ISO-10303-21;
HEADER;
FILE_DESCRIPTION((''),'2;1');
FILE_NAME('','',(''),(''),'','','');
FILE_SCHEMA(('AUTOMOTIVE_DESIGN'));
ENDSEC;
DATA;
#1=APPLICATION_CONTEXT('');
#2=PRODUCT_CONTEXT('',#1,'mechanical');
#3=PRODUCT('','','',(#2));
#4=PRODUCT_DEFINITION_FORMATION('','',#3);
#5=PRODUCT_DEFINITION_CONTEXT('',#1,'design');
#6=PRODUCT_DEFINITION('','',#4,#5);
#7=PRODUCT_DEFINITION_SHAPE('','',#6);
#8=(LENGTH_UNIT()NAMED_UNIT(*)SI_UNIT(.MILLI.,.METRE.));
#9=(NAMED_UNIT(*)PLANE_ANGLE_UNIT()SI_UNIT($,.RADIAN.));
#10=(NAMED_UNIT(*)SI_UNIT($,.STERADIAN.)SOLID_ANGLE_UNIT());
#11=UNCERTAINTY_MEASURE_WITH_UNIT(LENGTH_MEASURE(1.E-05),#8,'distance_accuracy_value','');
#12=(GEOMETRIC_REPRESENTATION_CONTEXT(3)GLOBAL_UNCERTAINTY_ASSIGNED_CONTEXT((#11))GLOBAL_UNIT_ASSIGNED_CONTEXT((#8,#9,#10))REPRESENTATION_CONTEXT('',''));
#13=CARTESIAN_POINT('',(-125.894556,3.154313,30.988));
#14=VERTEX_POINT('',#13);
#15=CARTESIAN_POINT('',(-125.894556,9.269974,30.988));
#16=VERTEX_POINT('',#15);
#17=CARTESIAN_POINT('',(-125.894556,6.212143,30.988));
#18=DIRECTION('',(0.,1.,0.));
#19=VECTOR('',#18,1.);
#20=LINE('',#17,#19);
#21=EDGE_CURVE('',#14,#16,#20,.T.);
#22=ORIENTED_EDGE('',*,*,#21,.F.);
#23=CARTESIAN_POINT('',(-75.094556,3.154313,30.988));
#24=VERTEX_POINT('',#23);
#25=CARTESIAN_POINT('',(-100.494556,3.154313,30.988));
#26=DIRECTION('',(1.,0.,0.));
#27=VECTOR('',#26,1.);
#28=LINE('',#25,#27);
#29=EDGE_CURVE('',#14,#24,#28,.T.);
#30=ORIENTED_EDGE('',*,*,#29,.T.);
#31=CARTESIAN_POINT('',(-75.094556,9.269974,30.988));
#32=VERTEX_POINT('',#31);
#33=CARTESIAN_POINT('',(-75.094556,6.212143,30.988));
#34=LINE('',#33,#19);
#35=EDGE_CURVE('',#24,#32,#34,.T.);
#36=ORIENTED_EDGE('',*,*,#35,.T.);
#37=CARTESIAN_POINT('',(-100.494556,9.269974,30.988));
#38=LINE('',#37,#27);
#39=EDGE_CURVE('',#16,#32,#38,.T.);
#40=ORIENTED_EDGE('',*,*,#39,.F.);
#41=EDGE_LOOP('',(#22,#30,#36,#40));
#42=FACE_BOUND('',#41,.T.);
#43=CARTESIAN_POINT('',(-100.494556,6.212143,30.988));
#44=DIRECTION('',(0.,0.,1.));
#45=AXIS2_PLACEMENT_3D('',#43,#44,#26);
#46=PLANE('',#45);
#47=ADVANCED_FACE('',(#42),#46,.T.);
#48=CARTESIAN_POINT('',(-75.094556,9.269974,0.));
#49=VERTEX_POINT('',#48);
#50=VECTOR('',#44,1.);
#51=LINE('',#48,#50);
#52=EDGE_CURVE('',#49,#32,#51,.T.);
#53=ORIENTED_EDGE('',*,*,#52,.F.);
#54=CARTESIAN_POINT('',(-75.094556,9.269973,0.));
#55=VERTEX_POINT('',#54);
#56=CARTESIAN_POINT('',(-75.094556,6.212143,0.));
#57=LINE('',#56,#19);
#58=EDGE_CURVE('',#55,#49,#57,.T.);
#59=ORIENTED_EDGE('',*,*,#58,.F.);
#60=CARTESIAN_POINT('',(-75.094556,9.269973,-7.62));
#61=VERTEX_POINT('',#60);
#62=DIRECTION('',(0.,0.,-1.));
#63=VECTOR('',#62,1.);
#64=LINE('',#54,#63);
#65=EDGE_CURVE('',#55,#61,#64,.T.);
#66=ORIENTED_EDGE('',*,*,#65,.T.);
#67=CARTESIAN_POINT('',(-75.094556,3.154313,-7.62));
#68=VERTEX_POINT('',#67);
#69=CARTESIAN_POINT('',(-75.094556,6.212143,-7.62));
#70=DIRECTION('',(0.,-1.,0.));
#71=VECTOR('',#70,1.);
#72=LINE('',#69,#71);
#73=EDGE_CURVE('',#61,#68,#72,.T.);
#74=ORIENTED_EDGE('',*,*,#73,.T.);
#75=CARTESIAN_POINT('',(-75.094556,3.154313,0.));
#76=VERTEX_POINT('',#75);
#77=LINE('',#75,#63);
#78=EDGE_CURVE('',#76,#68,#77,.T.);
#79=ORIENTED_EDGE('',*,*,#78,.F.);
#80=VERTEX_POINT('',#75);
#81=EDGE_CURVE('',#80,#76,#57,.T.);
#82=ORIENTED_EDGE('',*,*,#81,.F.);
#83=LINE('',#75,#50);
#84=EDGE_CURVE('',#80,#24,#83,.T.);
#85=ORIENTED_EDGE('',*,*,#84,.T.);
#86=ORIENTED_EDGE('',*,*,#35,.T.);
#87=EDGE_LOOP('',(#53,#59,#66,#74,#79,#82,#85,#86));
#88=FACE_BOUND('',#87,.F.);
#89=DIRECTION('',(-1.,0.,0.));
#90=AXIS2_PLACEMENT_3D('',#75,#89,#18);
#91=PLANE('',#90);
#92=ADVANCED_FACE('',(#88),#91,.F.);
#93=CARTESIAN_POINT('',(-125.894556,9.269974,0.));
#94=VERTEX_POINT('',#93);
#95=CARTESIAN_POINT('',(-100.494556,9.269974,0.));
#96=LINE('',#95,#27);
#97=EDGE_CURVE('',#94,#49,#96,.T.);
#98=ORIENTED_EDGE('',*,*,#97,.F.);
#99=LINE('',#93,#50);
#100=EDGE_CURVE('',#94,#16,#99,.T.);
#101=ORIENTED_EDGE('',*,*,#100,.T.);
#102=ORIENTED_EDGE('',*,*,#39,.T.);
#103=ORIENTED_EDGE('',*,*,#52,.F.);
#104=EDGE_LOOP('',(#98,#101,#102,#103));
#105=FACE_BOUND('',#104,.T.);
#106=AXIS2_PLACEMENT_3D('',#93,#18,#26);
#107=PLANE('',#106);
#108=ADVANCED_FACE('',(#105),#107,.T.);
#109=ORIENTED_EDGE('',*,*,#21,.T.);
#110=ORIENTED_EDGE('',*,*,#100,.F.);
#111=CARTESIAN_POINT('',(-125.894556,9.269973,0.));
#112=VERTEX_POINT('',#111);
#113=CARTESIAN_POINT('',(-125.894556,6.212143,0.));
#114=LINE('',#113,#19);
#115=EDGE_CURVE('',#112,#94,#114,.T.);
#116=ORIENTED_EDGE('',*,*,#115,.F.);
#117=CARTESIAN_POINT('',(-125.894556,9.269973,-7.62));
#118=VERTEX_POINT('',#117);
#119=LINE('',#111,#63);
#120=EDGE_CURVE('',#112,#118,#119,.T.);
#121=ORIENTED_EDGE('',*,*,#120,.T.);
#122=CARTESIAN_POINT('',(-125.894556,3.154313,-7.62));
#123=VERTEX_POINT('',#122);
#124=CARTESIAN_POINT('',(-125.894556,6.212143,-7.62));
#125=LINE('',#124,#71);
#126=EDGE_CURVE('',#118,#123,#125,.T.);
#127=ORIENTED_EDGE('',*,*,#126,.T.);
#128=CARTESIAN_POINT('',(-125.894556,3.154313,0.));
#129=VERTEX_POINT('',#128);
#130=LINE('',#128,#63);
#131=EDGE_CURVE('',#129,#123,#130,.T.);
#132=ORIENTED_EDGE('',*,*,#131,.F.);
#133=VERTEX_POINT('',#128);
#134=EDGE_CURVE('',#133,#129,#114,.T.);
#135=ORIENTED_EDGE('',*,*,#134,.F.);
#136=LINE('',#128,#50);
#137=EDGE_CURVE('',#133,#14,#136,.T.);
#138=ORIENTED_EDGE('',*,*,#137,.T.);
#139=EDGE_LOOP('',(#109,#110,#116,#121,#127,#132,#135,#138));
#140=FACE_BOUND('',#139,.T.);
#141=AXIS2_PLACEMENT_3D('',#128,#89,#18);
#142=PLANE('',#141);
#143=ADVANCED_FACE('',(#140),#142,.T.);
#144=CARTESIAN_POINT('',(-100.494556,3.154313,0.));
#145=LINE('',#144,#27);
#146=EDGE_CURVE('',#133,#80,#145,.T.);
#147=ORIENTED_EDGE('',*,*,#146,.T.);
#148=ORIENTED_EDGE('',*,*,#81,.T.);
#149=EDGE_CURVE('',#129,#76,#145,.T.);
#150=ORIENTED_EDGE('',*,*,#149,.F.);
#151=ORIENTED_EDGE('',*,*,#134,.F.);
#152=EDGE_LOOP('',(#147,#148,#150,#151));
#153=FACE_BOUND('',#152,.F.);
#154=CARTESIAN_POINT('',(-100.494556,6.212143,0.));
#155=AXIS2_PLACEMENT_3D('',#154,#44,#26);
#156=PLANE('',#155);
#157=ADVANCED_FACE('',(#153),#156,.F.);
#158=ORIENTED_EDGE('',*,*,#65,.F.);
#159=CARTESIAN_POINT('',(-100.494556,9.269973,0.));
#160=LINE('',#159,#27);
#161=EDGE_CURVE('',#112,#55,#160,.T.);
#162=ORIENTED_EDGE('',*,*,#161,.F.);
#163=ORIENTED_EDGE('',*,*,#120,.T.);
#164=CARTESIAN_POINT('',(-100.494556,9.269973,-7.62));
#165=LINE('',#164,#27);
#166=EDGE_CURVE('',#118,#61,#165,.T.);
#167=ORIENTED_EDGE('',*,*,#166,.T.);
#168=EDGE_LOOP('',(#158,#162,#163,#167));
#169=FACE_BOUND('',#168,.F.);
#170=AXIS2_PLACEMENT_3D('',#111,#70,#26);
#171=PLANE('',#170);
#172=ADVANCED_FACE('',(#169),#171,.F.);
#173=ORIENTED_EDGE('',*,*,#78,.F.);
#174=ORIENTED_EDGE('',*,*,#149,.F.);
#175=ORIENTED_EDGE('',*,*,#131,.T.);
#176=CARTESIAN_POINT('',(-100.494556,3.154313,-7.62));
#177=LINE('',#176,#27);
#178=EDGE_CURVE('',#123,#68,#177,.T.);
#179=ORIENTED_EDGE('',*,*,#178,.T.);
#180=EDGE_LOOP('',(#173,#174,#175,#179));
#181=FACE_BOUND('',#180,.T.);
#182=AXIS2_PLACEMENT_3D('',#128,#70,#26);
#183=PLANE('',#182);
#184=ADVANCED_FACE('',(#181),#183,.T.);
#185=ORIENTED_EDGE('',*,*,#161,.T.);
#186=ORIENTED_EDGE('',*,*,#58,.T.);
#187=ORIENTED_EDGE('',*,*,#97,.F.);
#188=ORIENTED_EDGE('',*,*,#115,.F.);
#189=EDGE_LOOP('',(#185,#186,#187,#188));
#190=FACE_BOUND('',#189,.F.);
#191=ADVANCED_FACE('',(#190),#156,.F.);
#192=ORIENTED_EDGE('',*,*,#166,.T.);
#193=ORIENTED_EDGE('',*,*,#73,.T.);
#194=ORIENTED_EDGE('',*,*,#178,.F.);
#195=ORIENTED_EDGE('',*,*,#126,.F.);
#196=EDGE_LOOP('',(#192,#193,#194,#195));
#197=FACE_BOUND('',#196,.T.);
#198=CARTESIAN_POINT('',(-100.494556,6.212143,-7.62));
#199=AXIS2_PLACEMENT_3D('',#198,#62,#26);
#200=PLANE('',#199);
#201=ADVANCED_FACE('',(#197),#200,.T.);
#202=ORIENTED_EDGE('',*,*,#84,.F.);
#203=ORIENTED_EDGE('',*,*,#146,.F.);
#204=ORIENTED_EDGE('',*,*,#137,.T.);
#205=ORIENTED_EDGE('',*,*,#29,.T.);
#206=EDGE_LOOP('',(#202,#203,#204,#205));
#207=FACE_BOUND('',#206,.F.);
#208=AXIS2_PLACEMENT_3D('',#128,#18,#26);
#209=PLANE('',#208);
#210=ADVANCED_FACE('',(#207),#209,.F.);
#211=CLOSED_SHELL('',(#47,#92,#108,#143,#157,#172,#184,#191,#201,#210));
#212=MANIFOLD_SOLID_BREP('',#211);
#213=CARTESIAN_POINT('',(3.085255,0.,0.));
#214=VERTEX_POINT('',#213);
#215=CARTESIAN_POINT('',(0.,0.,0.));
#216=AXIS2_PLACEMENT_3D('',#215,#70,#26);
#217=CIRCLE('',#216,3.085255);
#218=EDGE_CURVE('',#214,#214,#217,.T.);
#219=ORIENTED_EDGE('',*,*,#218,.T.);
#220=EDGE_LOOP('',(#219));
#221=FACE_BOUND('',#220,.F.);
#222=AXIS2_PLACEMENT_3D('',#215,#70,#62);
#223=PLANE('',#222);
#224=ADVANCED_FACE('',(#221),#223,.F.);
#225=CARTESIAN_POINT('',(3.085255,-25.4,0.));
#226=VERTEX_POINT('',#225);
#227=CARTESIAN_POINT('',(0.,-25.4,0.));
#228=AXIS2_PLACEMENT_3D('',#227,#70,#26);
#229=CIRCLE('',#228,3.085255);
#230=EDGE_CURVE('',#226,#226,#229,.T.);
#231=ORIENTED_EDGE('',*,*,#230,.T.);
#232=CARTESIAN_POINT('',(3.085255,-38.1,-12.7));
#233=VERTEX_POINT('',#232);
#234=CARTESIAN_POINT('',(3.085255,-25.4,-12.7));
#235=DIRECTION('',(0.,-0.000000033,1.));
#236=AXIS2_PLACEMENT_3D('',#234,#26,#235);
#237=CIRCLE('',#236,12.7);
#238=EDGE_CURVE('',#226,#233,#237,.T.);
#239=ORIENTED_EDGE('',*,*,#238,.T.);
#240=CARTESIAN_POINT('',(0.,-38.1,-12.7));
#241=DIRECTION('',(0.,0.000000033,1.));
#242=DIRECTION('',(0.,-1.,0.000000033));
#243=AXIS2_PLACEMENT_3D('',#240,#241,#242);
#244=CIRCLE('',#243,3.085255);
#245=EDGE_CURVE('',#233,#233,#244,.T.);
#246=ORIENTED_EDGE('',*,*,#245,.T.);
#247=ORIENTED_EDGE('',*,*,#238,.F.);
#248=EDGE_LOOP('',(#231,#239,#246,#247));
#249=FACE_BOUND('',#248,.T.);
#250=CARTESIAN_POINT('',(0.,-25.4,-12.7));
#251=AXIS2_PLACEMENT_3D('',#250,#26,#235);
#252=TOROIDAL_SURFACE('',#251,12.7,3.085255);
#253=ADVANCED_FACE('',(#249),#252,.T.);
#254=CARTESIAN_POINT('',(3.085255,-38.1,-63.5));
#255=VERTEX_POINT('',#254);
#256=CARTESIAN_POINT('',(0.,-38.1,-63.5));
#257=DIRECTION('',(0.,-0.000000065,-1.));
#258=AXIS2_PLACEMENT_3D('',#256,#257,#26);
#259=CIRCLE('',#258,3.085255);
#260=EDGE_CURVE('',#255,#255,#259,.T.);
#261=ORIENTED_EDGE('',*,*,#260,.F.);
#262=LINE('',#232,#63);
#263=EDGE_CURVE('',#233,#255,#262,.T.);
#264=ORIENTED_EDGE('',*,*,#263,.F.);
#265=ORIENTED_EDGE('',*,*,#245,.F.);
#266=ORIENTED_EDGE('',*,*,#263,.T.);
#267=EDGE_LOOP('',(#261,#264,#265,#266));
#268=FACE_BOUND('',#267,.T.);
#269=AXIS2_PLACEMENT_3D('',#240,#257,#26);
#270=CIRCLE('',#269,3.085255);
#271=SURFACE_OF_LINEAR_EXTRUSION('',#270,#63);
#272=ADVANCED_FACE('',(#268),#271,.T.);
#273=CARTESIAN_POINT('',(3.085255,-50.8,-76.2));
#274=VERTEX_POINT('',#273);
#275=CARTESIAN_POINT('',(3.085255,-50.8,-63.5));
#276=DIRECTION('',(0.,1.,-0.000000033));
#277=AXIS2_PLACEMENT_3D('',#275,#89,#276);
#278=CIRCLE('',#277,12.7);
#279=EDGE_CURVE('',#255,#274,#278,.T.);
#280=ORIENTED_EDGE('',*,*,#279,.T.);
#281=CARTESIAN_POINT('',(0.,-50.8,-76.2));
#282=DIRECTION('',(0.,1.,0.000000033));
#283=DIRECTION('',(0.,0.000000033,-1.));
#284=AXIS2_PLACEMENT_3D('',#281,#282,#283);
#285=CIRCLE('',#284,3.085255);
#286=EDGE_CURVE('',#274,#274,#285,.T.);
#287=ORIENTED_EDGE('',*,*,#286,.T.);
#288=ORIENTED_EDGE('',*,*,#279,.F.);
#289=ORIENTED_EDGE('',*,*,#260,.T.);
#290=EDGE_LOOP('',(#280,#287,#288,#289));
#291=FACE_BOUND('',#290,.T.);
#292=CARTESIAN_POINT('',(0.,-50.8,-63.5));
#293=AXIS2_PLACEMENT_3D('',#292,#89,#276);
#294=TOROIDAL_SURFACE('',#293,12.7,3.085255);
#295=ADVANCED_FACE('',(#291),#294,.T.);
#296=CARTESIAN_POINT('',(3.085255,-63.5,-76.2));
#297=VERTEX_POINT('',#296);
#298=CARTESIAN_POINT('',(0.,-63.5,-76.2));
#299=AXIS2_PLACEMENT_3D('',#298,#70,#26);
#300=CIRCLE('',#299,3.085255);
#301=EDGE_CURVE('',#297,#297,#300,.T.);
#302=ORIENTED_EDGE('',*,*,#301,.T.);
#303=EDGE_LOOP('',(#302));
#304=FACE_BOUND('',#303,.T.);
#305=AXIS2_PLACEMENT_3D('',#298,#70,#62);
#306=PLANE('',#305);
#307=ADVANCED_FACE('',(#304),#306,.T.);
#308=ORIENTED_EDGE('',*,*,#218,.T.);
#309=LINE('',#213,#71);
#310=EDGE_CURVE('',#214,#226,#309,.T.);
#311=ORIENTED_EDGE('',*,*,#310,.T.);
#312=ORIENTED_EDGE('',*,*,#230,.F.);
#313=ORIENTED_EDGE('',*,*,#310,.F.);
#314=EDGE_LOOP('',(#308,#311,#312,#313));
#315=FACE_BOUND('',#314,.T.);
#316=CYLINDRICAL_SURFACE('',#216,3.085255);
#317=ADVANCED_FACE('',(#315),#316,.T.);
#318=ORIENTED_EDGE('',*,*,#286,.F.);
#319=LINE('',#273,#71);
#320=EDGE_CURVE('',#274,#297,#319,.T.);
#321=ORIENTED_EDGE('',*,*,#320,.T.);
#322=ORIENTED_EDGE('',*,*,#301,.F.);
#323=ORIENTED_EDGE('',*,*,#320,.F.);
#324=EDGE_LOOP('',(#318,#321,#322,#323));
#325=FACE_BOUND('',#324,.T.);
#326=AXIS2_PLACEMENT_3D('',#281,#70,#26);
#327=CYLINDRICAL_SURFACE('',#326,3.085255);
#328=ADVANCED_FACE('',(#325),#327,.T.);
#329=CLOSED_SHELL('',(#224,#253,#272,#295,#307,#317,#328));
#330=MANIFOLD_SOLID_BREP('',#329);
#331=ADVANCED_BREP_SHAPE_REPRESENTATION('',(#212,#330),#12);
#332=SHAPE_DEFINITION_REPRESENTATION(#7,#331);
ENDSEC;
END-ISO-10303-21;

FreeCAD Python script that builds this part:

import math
import FreeCAD as App
import Part
import Sketcher
Q = App.Units.Quantity


def add_polygon(sketch, points):
    """Adds a closed chain of lines whose ends are joined by coincident constraints."""
    first, n = sketch.GeometryCount, len(points)
    for a, b in zip(points, points[1:] + points[:1]):
        sketch.addGeometry(Part.LineSegment(App.Vector(*a, 0), App.Vector(*b, 0)), False)
    for i in range(n):
        sketch.addConstraint(Sketcher.Constraint("Coincident", first + i, 2, first + (i + 1) % n, 1))

doc = App.newDocument("Part")
body = doc.addObject("PartDesign::Body", "Body")

# Sketch on XZ plane
sketch1 = body.newObject("Sketcher::SketchObject", "Sketch")
sketch1.AttachmentSupport = (doc.getObject("XZ_Plane"), [""])
sketch1.MapMode = "FlatFace"
sketch1.addGeometry(Part.Circle(App.Vector(0, 0, 0), App.Vector(0, 0, 1), 3.085255), False)
sketch1.addConstraint(Sketcher.Constraint("Coincident", 0, 3, -1, 1))
sketch1.addConstraint(Sketcher.Constraint("Diameter", 0, 6.17051))

# Sketch on YZ plane
sketch2 = body.newObject("Sketcher::SketchObject", "Sketch001")
sketch2.AttachmentSupport = (doc.getObject("YZ_Plane"), [""])
sketch2.MapMode = "FlatFace"
sketch2.addGeometry(Part.LineSegment(App.Vector(0, 0, 0), App.Vector(-25.4, 0, 0)), False)
sketch2.addGeometry(Part.ArcOfCircle(Part.Circle(App.Vector(-25.4, -12.7, 0), App.Vector(0, 0, 1), 12.7), math.radians(90.000002), math.radians(179.999998)), False)
sketch2.addGeometry(Part.LineSegment(App.Vector(-38.1, -12.7, 0), App.Vector(-38.1, -63.5, 0)), False)
sketch2.addGeometry(Part.ArcOfCircle(Part.Circle(App.Vector(-50.8, -63.5, 0), App.Vector(0, 0, 1), 12.7), math.radians(-89.999998), math.radians(-0.000002)), False)
sketch2.addGeometry(Part.LineSegment(App.Vector(-50.8, -76.2, 0), App.Vector(-63.5, -76.2, 0)), False)
sketch2.addConstraint(Sketcher.Constraint("Tangent", 0, 2, 1, 1))
sketch2.addConstraint(Sketcher.Constraint("Tangent", 1, 2, 2, 1))
sketch2.addConstraint(Sketcher.Constraint("Tangent", 2, 2, 3, 2))
sketch2.addConstraint(Sketcher.Constraint("Tangent", 3, 1, 4, 1))
sketch2.addConstraint(Sketcher.Constraint("Horizontal", 0))
sketch2.addConstraint(Sketcher.Constraint("Vertical", 2))
sketch2.addConstraint(Sketcher.Constraint("Horizontal", 4))
sketch2.addConstraint(Sketcher.Constraint("Coincident", 0, 1, -1, 1))
sketch2.addConstraint(Sketcher.Constraint("Equal", 1, 3))
sketch2.addConstraint(Sketcher.Constraint("Radius", 1, Q("0.5 in")))
sketch2.addConstraint(Sketcher.Constraint("DistanceX", 0, 2, 0, 1, Q("1 in")))
sketch2.addConstraint(Sketcher.Constraint("DistanceY", 2, 2, 2, 1, Q("2 in")))
sketch2.addConstraint(Sketcher.Constraint("DistanceX", 4, 2, 4, 1, Q("0.5 in")))
doc.recompute()

additivepipe = body.newObject("PartDesign::AdditivePipe", "AdditivePipe")
additivepipe.Profile = sketch1
additivepipe.Spine = (sketch2, ["Edge1", "Edge2", "Edge3", "Edge4", "Edge5"])
body2 = doc.addObject("PartDesign::Body", "Body001")

# Sketch on XY plane
sketch3 = body2.newObject("Sketcher::SketchObject", "Sketch002")
sketch3.AttachmentSupport = (doc.getObject("XY_Plane001"), [""])
sketch3.MapMode = "FlatFace"
add_polygon(sketch3, [(-125.894556, 9.269974), (-125.894556, 3.154313), (-75.094556, 3.154313), (-75.094556, 9.269974)])  # lines 0-3
sketch3.addConstraint(Sketcher.Constraint("Vertical", 0))
sketch3.addConstraint(Sketcher.Constraint("Horizontal", 1))
sketch3.addConstraint(Sketcher.Constraint("Vertical", 2))
sketch3.addConstraint(Sketcher.Constraint("Horizontal", 3))
sketch3.addConstraint(Sketcher.Constraint("DistanceX", 1, 1, 1, 2, Q("2 in")))
sketch3.addConstraint(Sketcher.Constraint("DistanceY", 0, 2, 0, 1, 6.115661))
sketch3.addConstraint(Sketcher.Constraint("DistanceX", 0, 2, -1, 1, 125.894556))
sketch3.addConstraint(Sketcher.Constraint("DistanceY", -1, 1, 0, 2, 3.154313))
pad1 = body2.newObject("PartDesign::Pad", "Pad")
pad1.Profile = sketch3
pad1.Length = Q("1.22 in")

# Sketch on XY plane
sketch4 = body2.newObject("Sketcher::SketchObject", "Sketch003")
sketch4.AttachmentSupport = (doc.getObject("XY_Plane001"), [""])
sketch4.MapMode = "FlatFace"
add_polygon(sketch4, [(-125.894556, 3.154313), (-125.894556, 9.269973), (-75.094556, 9.269973), (-75.094556, 3.154313)])  # lines 0-3
sketch4.addConstraint(Sketcher.Constraint("Vertical", 0))
sketch4.addConstraint(Sketcher.Constraint("Horizontal", 1))
sketch4.addConstraint(Sketcher.Constraint("Vertical", 2))
sketch4.addConstraint(Sketcher.Constraint("Horizontal", 3))
sketch4.addConstraint(Sketcher.Constraint("DistanceX", 1, 1, 1, 2, Q("2 in")))
sketch4.addConstraint(Sketcher.Constraint("DistanceY", 0, 1, 0, 2, 6.11566))
sketch4.addConstraint(Sketcher.Constraint("DistanceX", 0, 2, -1, 1, 125.894556))
sketch4.addConstraint(Sketcher.Constraint("DistanceY", -1, 1, 0, 2, 9.269973))
pad2 = body2.newObject("PartDesign::Pad", "Pad001")
pad2.Profile = sketch4
pad2.Length = Q("0.3 in")
pad2.Reversed = True

doc.recompute()
